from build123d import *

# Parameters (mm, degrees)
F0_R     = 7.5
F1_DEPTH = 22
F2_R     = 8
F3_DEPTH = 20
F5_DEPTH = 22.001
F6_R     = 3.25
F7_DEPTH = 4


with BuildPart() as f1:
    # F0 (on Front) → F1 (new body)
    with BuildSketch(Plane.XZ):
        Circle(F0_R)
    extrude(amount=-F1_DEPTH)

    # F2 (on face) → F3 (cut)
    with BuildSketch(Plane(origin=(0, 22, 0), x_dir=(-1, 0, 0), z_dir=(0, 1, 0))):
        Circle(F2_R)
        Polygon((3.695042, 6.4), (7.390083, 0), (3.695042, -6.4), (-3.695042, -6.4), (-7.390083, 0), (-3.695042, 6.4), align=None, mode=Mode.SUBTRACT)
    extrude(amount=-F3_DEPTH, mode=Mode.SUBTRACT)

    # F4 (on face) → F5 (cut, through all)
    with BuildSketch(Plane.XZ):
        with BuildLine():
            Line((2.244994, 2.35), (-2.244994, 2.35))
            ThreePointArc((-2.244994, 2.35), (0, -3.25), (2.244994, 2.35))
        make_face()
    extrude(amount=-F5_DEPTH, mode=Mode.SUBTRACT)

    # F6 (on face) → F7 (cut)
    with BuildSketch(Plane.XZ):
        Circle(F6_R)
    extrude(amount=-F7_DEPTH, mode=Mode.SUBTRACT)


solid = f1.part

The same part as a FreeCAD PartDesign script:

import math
import FreeCAD as App
import Part
import Sketcher
Q = App.Units.Quantity


def add_polygon(sketch, points):
    """Adds a closed chain of lines whose ends are joined by coincident constraints."""
    first, n = sketch.GeometryCount, len(points)
    for a, b in zip(points, points[1:] + points[:1]):
        sketch.addGeometry(Part.LineSegment(App.Vector(*a, 0), App.Vector(*b, 0)), False)
    for i in range(n):
        sketch.addConstraint(Sketcher.Constraint("Coincident", first + i, 2, first + (i + 1) % n, 1))

doc = App.newDocument("Part")
body = doc.addObject("PartDesign::Body", "Body")

# Sketch on XZ plane
sketch1 = body.newObject("Sketcher::SketchObject", "Sketch")
sketch1.AttachmentSupport = (doc.getObject("XZ_Plane"), [""])
sketch1.MapMode = "FlatFace"
sketch1.addGeometry(Part.Circle(App.Vector(0, 0, 0), App.Vector(0, 0, 1), 8), False)
sketch1.addConstraint([
    Sketcher.Constraint("Coincident", 0, 3, -1, 1),
    Sketcher.Constraint("Diameter", 0, Q("15 mm")),
])
pad1 = body.newObject("PartDesign::Pad", "Pad")
pad1.Profile = sketch1
pad1.Length = 22
pad1.Reversed = True

# Sketch on XZ plane
sketch2 = body.newObject("Sketcher::SketchObject", "Sketch001")
sketch2.AttachmentSupport = (doc.getObject("XZ_Plane"), [""])
sketch2.MapMode = "FlatFace"
sketch2.AttachmentOffset = App.Placement(App.Vector(0, 0, -22), App.Rotation())
sketch2.addGeometry(Part.Circle(App.Vector(0, 0, 0), App.Vector(0, 0, 1), 8), False)  # 0
add_polygon(sketch2, [(4, 6), (-4, 6), (-7, 0), (-4, -6), (4, -6), (7, 0)])  # lines 1-6
sketch2.addConstraint([
    Sketcher.Constraint("Horizontal", 1),
    Sketcher.Constraint("Horizontal", 4),
    Sketcher.Constraint("Coincident", 0, 3, -1, 1),
    Sketcher.Constraint("Symmetric", 1, 2, 4, 2, -1, 1),
    Sketcher.Constraint("Symmetric", 2, 2, 5, 2, -1, 1),
    Sketcher.Constraint("PointOnObject", 2, 2, -1),
    Sketcher.Constraint("Parallel", 3, 6),
    Sketcher.Constraint("Vertical", 1, 2, 3, 2),
    Sketcher.Constraint("Diameter", 0, Q("16 mm")),
    Sketcher.Constraint("Angle", 2, Q("-119.999995 deg")),
    Sketcher.Constraint("DistanceY", -1, 1, 1, 2, Q("6.4 mm")),
    Sketcher.Constraint("DistanceX", 1, 2, 1, 1, Q("7.390084 mm")),
])
pocket1 = body.newObject("PartDesign::Pocket", "Pocket")
pocket1.Profile = sketch2
pocket1.Length = 20
pocket1.Reversed = True

# Sketch on XZ plane
sketch3 = body.newObject("Sketcher::SketchObject", "Sketch002")
sketch3.AttachmentSupport = (doc.getObject("XZ_Plane"), [""])
sketch3.MapMode = "FlatFace"
sketch3.addGeometry([
    Part.LineSegment(App.Vector(2.2, 2.4, 0), App.Vector(-2.2, 2.4, 0)),
    Part.ArcOfCircle(Part.Circle(App.Vector(0, 0, 0), App.Vector(0, 0, 1), 3.2), math.radians(134), math.radians(406)),
], False)
sketch3.addConstraint([
    Sketcher.Constraint("Coincident", 0, 1, 1, 2),
    Sketcher.Constraint("Coincident", 1, 1, 0, 2),
    Sketcher.Constraint("Horizontal", 0),
    Sketcher.Constraint("Coincident", 1, 3, -1, 1),
    Sketcher.Constraint("Radius", 1, Q("3.25 mm")),
    Sketcher.Constraint("DistanceY", -1, 1, 0, 1, Q("2.35 mm")),
])
pocket2 = body.newObject("PartDesign::Pocket", "Pocket001")
pocket2.Profile = sketch3
pocket2.Type = "ThroughAll"

# Sketch on XZ plane
sketch4 = body.newObject("Sketcher::SketchObject", "Sketch003")
sketch4.AttachmentSupport = (doc.getObject("XZ_Plane"), [""])
sketch4.MapMode = "FlatFace"
sketch4.addGeometry(Part.Circle(App.Vector(0, 0, 0), App.Vector(0, 0, 1), 3.2), False)
sketch4.addConstraint([
    Sketcher.Constraint("Coincident", 0, 3, -1, 1),
    Sketcher.Constraint("Diameter", 0, Q("6.5 mm")),
])
pocket3 = body.newObject("PartDesign::Pocket", "Pocket002")
pocket3.Profile = sketch4
pocket3.Length = 4

doc.recompute()
